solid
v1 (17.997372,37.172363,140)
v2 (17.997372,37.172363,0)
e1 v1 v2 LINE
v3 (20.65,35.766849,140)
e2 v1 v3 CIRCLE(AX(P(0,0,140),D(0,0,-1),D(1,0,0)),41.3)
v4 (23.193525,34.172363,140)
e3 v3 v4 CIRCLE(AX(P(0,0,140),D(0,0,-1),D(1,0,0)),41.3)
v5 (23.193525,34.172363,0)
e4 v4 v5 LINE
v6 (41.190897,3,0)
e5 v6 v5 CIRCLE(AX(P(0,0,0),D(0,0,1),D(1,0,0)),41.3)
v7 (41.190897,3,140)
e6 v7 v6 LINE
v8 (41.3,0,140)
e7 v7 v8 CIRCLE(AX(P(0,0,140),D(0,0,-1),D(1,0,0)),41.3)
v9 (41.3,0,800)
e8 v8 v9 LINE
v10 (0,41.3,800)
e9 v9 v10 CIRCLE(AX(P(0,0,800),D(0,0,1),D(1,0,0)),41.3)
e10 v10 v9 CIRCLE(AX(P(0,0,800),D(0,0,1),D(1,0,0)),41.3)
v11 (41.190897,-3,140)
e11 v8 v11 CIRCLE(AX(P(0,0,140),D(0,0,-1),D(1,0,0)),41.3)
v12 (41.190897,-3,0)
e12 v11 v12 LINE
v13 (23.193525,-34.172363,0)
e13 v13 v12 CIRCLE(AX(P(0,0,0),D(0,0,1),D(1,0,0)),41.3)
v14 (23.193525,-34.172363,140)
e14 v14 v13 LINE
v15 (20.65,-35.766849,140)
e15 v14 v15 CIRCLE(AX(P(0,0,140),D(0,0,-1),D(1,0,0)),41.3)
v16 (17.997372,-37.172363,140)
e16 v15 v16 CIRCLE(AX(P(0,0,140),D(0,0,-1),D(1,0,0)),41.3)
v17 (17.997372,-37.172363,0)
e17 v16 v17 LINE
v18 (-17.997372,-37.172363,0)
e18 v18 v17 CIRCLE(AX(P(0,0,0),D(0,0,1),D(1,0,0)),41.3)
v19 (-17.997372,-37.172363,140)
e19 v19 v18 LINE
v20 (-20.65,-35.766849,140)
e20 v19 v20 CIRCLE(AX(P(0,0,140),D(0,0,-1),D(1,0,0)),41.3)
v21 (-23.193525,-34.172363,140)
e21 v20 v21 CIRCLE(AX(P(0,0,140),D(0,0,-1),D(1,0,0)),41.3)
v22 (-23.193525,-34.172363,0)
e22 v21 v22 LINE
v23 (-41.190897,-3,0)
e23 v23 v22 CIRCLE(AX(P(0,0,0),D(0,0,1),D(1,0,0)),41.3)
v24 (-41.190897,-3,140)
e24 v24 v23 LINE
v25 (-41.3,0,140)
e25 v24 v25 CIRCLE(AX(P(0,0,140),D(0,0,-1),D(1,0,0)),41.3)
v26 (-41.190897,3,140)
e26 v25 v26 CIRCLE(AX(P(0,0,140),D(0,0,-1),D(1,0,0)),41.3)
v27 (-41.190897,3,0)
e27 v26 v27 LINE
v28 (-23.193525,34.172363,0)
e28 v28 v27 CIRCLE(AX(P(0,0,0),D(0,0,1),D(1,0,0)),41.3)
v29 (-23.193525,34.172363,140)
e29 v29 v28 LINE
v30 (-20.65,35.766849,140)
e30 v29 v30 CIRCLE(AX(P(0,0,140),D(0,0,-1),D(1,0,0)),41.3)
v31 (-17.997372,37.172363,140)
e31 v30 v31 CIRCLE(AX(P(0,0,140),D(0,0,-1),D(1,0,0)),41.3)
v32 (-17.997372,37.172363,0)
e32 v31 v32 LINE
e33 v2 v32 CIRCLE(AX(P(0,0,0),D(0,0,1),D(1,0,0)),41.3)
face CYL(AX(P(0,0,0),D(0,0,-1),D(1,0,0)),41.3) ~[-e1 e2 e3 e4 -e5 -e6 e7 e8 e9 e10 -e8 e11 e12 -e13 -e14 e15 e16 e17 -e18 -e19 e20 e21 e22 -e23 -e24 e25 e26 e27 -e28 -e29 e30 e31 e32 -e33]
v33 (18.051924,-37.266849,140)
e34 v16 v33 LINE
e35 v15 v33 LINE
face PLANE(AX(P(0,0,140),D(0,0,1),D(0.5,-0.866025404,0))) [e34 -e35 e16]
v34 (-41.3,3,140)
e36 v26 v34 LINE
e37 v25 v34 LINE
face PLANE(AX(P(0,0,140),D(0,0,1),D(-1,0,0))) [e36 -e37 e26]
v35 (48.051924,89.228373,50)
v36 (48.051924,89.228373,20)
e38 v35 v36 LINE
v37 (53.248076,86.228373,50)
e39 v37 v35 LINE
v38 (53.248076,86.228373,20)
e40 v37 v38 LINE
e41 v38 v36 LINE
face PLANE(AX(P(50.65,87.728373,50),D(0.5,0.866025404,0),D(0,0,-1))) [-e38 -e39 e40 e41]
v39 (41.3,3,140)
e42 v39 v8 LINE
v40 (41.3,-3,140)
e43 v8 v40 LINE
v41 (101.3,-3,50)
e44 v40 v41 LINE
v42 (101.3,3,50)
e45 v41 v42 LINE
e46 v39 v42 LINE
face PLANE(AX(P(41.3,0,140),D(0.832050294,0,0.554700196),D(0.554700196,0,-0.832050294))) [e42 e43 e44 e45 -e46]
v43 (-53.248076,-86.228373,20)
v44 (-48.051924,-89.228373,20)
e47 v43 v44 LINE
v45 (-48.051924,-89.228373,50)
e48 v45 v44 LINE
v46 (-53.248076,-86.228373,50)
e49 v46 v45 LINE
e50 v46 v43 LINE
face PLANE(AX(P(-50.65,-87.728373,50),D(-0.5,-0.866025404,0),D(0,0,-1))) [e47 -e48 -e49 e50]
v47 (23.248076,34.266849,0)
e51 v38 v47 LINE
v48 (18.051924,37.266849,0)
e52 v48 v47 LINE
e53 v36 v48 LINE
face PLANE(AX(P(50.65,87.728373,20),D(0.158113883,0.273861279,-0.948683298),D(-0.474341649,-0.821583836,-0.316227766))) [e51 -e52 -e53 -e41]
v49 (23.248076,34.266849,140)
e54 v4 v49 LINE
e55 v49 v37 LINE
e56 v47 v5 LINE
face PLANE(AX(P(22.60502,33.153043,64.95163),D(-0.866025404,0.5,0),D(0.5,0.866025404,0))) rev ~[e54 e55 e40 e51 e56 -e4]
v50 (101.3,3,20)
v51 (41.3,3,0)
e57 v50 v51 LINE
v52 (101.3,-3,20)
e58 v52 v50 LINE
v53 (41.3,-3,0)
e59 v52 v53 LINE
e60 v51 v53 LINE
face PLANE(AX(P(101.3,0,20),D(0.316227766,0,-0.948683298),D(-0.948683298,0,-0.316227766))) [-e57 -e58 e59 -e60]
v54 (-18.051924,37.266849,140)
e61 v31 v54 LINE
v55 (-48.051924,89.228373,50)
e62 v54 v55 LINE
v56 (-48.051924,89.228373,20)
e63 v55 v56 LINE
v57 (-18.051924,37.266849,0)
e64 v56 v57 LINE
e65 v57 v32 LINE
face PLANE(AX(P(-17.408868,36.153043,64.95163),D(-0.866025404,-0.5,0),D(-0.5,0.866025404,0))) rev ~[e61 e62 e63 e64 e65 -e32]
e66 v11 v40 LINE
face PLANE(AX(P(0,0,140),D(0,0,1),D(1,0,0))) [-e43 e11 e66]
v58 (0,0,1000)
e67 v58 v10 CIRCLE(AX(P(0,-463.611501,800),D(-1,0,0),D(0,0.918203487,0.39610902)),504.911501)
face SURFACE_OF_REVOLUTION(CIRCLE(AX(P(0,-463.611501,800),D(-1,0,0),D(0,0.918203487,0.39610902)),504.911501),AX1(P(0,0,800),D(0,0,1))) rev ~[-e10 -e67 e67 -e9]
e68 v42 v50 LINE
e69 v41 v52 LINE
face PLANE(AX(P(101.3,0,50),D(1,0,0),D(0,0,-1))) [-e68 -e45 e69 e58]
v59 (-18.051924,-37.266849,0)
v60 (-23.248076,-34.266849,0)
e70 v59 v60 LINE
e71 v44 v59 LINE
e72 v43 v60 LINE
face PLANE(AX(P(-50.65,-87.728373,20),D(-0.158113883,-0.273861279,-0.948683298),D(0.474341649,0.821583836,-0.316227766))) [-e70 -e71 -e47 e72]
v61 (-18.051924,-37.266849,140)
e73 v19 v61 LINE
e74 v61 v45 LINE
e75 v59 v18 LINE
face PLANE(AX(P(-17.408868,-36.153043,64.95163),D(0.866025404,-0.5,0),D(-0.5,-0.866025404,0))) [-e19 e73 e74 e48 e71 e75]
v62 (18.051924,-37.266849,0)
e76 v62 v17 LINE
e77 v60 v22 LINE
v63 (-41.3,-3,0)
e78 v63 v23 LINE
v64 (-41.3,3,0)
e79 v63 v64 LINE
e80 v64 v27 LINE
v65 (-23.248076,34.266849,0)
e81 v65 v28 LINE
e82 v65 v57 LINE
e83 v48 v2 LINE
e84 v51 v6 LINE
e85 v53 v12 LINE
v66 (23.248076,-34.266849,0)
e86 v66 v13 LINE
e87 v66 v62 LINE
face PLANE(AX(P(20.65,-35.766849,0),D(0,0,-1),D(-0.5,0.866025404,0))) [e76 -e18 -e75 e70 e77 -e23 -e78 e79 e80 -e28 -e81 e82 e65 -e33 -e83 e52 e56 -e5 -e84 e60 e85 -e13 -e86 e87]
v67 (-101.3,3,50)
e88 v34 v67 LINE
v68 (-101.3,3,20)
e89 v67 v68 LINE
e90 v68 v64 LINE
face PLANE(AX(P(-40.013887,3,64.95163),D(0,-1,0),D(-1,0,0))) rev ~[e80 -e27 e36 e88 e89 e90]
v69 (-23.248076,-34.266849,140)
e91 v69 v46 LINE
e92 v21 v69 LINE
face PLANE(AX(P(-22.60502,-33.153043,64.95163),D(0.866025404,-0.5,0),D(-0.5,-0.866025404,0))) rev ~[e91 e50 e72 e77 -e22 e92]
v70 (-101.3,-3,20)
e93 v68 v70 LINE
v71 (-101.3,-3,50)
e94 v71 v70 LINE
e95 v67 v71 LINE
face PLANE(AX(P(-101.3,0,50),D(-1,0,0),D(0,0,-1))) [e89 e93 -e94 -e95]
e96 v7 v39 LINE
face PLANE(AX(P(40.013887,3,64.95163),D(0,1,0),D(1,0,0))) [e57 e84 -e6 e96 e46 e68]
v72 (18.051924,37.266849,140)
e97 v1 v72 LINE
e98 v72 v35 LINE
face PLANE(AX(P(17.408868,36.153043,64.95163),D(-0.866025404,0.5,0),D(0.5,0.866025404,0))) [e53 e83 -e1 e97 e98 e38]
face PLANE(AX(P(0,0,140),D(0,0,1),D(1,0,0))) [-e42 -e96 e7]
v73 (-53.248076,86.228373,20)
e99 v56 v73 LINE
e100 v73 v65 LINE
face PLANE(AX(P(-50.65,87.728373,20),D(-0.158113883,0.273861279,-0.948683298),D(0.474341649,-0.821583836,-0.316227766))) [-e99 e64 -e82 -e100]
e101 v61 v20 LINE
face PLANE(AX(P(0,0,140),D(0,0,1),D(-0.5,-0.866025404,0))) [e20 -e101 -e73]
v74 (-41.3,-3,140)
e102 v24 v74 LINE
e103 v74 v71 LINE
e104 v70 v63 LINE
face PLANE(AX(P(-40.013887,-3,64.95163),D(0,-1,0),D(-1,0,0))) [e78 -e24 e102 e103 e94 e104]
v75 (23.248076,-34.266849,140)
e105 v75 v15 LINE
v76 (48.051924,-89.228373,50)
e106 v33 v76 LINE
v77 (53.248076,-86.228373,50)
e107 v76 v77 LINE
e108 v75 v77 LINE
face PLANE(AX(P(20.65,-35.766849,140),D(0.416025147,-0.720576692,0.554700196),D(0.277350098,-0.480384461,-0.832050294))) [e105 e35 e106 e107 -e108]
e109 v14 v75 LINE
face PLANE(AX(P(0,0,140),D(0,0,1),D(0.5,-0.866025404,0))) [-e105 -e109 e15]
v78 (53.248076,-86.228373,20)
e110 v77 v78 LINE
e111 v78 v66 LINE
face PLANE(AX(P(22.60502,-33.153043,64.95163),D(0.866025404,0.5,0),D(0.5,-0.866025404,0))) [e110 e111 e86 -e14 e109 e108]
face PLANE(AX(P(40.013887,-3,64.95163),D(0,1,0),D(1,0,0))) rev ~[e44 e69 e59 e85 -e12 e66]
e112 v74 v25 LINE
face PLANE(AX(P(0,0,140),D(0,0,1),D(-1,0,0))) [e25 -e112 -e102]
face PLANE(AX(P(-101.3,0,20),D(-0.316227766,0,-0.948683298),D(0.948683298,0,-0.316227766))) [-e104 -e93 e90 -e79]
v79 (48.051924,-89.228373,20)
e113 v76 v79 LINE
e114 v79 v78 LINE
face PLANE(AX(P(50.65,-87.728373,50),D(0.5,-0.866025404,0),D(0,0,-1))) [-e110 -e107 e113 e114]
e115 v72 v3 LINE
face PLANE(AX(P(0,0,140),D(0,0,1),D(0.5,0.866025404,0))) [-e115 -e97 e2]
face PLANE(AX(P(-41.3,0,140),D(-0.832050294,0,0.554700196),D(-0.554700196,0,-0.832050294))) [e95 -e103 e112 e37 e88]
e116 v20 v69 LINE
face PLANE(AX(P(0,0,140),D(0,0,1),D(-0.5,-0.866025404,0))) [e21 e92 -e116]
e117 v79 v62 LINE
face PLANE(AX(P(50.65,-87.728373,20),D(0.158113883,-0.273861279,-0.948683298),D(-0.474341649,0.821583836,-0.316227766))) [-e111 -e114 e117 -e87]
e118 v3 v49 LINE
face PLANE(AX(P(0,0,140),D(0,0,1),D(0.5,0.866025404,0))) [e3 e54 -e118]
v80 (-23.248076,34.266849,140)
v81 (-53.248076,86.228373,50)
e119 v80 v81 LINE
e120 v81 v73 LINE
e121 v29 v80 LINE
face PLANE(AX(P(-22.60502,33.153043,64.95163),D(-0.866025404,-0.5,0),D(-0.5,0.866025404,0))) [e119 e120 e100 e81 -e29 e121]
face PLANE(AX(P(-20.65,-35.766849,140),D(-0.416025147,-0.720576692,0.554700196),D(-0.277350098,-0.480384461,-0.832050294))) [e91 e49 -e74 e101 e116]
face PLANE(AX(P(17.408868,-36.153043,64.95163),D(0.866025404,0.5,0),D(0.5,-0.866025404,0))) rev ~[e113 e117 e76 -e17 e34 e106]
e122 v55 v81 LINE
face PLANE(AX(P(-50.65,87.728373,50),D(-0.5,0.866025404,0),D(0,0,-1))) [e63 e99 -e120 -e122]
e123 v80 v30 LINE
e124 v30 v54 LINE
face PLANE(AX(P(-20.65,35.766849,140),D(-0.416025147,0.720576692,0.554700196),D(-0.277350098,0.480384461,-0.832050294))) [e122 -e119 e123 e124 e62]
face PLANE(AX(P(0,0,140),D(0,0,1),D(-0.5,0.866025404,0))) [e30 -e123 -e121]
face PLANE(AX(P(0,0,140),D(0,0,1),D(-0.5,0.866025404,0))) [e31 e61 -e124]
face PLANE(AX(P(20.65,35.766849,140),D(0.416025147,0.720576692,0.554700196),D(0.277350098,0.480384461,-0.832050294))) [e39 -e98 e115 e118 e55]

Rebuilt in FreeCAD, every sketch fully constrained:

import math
import FreeCAD as App
import Part
import Sketcher
from FreeCAD import Vector


def add_polygon(sketch, points):
    """Adds a closed chain of lines whose ends are joined by coincident constraints."""
    first, n = sketch.GeometryCount, len(points)
    for a, b in zip(points, points[1:] + points[:1]):
        sketch.addGeometry(Part.LineSegment(App.Vector(*a, 0), App.Vector(*b, 0)), False)
    for i in range(n):
        sketch.addConstraint(Sketcher.Constraint("Coincident", first + i, 2, first + (i + 1) % n, 1))

doc = App.newDocument("Part")
params = doc.addObject("Spreadsheet::Sheet", "Params")
for row, (alias, value) in enumerate([
    ("sketch1_diameter", "82.6 mm"),
    ("pad1_length", "800 mm"),
    ("sketch2_height", "200 mm"),
    ("sketch2_width", "41.3 mm"),
    ("revolution_angle", "360 deg"),
    ("sketch3_height", "30 mm"),
    ("sketch3_height2", "140 mm"),
    ("sketch3_width", "41.3 mm"),
    ("pad2_length", "6 mm"),
], start=1):
    params.set(f"A{row}", alias)
    params.set(f"B{row}", "=" + value)
    params.setAlias(f"B{row}", alias)

body = doc.addObject("PartDesign::Body", "Body")

sketch1 = body.newObject("Sketcher::SketchObject", "Sketch")
sketch1.AttachmentSupport = (doc.getObject("XY_Plane"), [""])
sketch1.MapMode = "FlatFace"
sketch1.addGeometry(Part.Circle(Vector(0, 0, 0), Vector(0, 0, 1), 41.3), False)
sketch1.addConstraint([
    Sketcher.Constraint("Coincident", 0, 3, -1, 1),
    Sketcher.Constraint("Diameter", 0, 82.6),
])
sketch1.setExpression("Constraints[1]", "Params.sketch1_diameter")
pad1 = body.newObject("PartDesign::Pad", "Pad")
pad1.Profile = sketch1
pad1.setExpression("Length", "Params.pad1_length")

sketch2 = body.newObject("Sketcher::SketchObject", "Sketch001")
sketch2.AttachmentSupport = (doc.getObject("YZ_Plane"), [""])
sketch2.MapMode = "FlatFace"
sketch2.addGeometry([
    Part.LineSegment(Vector(0, 1000, 0), Vector(0, 800, 0)),
    Part.LineSegment(Vector(0, 800, 0), Vector(41.3, 800, 0)),
    Part.ArcOfCircle(Part.Circle(Vector(-463.611501, 800, 0), Vector(0, 0, 1), 504.911501), math.radians(0), math.radians(23.335159)),
], False)
sketch2.addConstraint([
    Sketcher.Constraint("Coincident", 0, 2, 1, 1),
    Sketcher.Constraint("Coincident", 1, 2, 2, 1),
    Sketcher.Constraint("Coincident", 2, 2, 0, 1),
    Sketcher.Constraint("Vertical", 0),
    Sketcher.Constraint("Horizontal", 1),
    Sketcher.Constraint("PointOnObject", 0, 2, -2),
    Sketcher.Constraint("Horizontal", 2, 3, 0, 2),
    Sketcher.Constraint("DistanceY", 0, 2, 0, 1, 200.0),
    Sketcher.Constraint("DistanceX", 1, 1, 1, 2, 41.3),
    Sketcher.Constraint("DistanceY", -1, 1, 2, 3, 800.0),
])
sketch2.setExpression("Constraints[7]", "Params.sketch2_height")
sketch2.setExpression("Constraints[8]", "Params.sketch2_width")
revolution = body.newObject("PartDesign::Revolution", "Revolution")
revolution.Profile = sketch2
revolution.ReferenceAxis = (sketch2, ["V_Axis"])
revolution.setExpression("Angle", "Params.revolution_angle")

sketch3 = body.newObject("Sketcher::SketchObject", "Sketch002")
sketch3.AttachmentSupport = (doc.getObject("XZ_Plane"), [""])
sketch3.MapMode = "FlatFace"
add_polygon(sketch3, [(41.3, 140), (101.3, 50), (101.3, 20), (41.3, 0), (0, 0), (0, 140)])
sketch3.addConstraint([
    Sketcher.Constraint("Vertical", 1),
    Sketcher.Constraint("Horizontal", 3),
    Sketcher.Constraint("Vertical", 4),
    Sketcher.Constraint("Horizontal", 5),
    Sketcher.Constraint("Coincident", 3, 2, -1, 1),
    Sketcher.Constraint("Vertical", 2, 2, 5, 2),
    Sketcher.Constraint("DistanceY", 1, 2, 1, 1, 30.0),
    Sketcher.Constraint("DistanceY", 4, 1, 4, 2, 140.0),
    Sketcher.Constraint("DistanceX", 3, 2, 3, 1, 41.3),
    Sketcher.Constraint("DistanceY", -1, 1, 0, 2, 50.0),
    Sketcher.Constraint("DistanceX", 2, 2, 1, 2, 60.0),
])
sketch3.setExpression("Constraints[12]", "Params.sketch3_height")
sketch3.setExpression("Constraints[13]", "Params.sketch3_height2")
sketch3.setExpression("Constraints[14]", "Params.sketch3_width")
pad2 = body.newObject("PartDesign::Pad", "Pad001")
pad2.Profile = sketch3
pad2.setExpression("Length", "Params.pad2_length")
pad2.Midplane = True
doc.recompute()

polarpattern = body.newObject("PartDesign::PolarPattern", "PolarPattern")
polarpattern.Originals = [pad2]
polarpattern.Axis = (doc.getObject("Z_Axis"), [""])
polarpattern.Angle = 360
polarpattern.Occurrences = 6
body.Tip = polarpattern

doc.recompute()
